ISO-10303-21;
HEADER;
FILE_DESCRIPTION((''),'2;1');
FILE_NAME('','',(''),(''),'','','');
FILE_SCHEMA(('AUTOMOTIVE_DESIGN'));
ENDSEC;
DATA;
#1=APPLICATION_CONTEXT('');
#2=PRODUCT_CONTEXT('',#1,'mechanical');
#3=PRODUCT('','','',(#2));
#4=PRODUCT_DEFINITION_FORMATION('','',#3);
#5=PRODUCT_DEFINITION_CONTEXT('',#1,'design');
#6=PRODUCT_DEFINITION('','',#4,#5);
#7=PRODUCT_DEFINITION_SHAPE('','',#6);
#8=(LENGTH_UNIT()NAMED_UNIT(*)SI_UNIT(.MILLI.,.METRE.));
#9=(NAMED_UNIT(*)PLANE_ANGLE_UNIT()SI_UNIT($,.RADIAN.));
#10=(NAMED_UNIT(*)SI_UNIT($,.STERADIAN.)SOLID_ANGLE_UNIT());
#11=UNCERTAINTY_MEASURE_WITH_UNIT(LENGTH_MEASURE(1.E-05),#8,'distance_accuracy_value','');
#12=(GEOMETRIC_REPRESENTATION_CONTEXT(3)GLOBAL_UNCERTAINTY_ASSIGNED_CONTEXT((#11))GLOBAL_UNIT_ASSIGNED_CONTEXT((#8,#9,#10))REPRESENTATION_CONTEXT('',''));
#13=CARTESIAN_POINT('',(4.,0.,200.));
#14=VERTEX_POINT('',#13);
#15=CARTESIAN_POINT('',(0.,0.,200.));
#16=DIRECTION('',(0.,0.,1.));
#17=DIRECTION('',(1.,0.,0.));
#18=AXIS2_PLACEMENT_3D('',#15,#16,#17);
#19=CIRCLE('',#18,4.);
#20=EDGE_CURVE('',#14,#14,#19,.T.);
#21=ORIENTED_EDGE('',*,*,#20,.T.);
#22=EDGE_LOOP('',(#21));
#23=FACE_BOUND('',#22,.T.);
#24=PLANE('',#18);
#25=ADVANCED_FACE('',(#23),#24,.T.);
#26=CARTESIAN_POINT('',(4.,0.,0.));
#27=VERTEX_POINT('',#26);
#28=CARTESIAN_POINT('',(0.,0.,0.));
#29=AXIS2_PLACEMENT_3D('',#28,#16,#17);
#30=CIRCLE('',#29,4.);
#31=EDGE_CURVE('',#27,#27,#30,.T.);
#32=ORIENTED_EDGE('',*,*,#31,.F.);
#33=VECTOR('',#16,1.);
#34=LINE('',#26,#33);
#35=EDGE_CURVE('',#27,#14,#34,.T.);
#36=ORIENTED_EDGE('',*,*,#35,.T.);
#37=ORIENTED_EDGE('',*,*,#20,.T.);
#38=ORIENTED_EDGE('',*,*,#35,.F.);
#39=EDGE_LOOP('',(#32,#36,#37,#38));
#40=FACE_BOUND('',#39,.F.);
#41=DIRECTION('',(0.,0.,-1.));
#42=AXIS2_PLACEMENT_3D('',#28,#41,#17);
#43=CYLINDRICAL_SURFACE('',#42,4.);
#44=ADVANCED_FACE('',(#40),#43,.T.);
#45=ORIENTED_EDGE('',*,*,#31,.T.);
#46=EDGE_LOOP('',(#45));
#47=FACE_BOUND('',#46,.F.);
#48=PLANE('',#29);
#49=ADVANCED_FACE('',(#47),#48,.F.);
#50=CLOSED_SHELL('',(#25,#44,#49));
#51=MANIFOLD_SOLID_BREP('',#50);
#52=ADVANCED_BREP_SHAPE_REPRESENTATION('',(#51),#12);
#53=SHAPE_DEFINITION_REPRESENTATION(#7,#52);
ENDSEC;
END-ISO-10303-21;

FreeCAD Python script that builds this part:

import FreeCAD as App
import Part
import Sketcher
from FreeCAD import Vector

doc = App.newDocument("Part")
body = doc.addObject("PartDesign::Body", "Body")

# Sketch on XY plane
sketch1 = body.newObject("Sketcher::SketchObject", "Sketch")
sketch1.AttachmentSupport = (doc.getObject("XY_Plane"), [""])
sketch1.MapMode = "FlatFace"
sketch1.addGeometry(Part.Circle(Vector(0, 0, 0), Vector(0, 0, 1), 4), False)
sketch1.addConstraint(Sketcher.Constraint("Coincident", 0, 3, -1, 1))
sketch1.addConstraint(Sketcher.Constraint("Diameter", 0, 8.0))
pad1 = body.newObject("PartDesign::Pad", "Pad")
pad1.Profile = sketch1
pad1.Length = 200

doc.recompute()
